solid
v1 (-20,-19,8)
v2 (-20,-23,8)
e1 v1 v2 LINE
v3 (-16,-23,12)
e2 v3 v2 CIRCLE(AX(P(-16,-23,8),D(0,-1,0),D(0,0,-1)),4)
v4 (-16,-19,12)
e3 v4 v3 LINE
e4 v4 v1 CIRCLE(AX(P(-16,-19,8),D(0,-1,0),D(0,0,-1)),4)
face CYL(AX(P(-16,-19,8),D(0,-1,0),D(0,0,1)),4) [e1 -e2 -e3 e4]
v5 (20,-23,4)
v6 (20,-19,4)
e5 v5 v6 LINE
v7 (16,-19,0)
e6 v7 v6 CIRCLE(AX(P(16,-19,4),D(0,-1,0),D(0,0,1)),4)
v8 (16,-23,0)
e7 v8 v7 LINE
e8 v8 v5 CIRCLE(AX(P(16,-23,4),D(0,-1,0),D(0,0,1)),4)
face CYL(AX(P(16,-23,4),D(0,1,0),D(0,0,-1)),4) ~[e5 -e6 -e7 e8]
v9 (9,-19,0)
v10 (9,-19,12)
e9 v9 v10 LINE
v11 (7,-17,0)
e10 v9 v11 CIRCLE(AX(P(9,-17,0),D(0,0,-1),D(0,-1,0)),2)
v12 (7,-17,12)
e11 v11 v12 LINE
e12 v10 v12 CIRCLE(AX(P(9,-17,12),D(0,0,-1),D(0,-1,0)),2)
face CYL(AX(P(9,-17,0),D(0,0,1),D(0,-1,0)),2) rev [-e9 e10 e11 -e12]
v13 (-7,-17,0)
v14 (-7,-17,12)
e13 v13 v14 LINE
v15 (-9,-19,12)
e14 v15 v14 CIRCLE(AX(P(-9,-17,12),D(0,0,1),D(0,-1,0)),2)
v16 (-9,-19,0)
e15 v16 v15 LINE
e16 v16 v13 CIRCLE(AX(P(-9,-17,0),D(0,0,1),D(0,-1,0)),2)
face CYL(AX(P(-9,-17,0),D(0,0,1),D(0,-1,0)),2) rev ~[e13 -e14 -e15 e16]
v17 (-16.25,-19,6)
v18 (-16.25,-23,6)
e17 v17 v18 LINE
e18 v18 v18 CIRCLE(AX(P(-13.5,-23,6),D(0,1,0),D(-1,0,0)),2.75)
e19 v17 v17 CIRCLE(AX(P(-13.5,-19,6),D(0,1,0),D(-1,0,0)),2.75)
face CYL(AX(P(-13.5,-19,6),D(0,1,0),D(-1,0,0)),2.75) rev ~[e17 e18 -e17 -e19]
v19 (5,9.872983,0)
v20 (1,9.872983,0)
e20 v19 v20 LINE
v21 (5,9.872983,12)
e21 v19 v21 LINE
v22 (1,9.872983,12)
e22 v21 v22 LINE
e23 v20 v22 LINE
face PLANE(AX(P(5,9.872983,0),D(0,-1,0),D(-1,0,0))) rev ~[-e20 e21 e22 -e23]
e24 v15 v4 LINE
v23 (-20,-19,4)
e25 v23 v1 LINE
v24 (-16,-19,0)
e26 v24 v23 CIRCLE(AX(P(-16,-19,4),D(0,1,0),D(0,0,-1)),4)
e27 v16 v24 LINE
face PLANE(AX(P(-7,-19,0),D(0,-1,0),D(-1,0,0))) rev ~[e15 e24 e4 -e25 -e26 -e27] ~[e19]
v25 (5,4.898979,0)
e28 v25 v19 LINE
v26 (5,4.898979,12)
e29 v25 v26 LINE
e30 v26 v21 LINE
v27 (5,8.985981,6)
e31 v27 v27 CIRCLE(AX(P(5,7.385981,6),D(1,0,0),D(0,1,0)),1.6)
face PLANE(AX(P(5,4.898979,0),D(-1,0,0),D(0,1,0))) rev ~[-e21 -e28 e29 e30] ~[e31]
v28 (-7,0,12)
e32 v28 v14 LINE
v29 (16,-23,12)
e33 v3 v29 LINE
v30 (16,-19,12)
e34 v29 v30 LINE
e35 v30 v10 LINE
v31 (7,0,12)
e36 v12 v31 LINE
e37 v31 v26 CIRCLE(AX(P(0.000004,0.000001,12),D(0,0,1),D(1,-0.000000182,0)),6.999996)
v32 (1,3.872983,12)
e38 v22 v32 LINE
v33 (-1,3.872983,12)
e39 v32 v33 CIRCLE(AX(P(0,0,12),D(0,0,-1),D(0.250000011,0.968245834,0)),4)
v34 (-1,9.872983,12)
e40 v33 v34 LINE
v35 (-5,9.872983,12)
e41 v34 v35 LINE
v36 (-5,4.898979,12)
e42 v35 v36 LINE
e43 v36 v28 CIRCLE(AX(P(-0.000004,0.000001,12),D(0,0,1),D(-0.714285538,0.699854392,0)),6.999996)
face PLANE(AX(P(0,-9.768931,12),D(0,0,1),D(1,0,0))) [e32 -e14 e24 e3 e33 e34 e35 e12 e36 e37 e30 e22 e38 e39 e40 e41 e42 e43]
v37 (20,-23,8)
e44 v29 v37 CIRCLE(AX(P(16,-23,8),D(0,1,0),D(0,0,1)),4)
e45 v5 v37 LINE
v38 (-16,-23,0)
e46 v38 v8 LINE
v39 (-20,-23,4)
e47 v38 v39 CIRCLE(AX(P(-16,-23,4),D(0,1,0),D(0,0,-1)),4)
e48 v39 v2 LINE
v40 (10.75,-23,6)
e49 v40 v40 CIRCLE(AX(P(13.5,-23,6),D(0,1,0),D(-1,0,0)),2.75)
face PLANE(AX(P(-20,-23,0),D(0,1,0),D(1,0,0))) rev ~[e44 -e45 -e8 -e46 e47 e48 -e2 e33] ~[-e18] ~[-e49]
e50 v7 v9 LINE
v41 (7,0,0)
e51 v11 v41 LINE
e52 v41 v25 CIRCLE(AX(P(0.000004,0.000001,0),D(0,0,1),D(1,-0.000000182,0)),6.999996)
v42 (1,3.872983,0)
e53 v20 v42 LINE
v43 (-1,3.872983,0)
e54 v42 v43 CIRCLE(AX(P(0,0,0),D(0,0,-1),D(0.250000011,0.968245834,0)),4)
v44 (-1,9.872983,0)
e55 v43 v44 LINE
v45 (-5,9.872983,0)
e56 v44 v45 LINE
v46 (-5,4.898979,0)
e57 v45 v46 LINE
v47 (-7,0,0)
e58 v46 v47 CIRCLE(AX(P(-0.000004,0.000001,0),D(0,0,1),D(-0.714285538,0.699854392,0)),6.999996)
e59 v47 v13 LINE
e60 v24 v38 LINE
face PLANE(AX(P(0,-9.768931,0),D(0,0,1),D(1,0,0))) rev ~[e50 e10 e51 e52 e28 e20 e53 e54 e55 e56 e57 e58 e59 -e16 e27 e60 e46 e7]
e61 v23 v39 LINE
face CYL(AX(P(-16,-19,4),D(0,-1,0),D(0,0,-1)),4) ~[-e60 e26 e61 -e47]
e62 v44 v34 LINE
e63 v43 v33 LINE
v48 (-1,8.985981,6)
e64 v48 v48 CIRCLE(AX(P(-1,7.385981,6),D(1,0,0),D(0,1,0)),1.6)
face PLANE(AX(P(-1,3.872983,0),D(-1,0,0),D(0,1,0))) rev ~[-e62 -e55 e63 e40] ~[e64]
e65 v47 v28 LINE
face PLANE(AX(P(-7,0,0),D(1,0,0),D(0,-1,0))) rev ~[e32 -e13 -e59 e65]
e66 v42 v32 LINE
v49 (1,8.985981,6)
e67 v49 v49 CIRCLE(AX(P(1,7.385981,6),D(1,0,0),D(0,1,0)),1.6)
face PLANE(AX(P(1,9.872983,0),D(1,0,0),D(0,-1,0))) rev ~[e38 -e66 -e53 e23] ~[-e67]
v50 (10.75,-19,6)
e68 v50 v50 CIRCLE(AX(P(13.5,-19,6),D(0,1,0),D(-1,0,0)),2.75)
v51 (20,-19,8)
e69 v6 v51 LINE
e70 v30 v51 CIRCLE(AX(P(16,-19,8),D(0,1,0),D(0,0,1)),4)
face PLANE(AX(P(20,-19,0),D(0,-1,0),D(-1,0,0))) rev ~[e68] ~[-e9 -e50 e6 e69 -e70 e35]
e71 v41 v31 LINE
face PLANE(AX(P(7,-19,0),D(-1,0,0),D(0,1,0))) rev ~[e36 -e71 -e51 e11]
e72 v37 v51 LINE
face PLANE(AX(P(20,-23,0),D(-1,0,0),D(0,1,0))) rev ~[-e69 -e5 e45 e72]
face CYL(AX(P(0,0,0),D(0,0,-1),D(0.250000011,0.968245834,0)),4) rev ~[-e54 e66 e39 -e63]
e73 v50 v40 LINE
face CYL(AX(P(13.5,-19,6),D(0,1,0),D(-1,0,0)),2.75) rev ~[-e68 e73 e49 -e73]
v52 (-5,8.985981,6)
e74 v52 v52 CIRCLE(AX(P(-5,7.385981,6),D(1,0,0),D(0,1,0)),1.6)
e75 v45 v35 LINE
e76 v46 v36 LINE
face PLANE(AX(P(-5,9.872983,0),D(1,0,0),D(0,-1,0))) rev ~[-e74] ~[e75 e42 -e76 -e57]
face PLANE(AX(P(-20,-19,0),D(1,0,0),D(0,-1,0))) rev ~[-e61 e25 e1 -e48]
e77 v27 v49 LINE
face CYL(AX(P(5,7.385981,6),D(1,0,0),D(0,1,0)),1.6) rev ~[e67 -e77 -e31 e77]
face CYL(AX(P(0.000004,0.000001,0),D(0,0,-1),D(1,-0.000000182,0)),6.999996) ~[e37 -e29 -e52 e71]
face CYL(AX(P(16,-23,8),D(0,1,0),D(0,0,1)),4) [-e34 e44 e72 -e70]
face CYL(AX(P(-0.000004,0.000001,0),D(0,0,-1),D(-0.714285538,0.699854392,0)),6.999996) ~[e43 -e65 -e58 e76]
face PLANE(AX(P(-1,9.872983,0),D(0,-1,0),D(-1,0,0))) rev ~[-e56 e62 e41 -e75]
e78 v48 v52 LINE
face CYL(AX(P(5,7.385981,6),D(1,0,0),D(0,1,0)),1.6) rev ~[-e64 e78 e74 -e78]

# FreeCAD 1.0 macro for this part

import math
import FreeCAD as App
import Part
import Sketcher

V = App.Vector


def edges_at(feature, points):
    """Names of the edges that pass closest to the given points."""
    edges = feature.Shape.Edges
    near = lambda p: min(range(len(edges)), key=lambda i: edges[i].distToShape(Part.Vertex(*p))[0])
    return sorted({f"Edge{near(p) + 1}" for p in points})

doc = App.newDocument("Part")
body = doc.addObject("PartDesign::Body", "Body")

# Sketch on XY plane
sketch1 = body.newObject("Sketcher::SketchObject", "Sketch")
sketch1.AttachmentSupport = (doc.getObject("XY_Plane"), [""])
sketch1.MapMode = "FlatFace"
sketch1.addGeometry([
    Part.ArcOfCircle(Part.Circle(V(0, 0, 0), V(0, 0, 1), 4), math.radians(104), math.radians(436)),  # 0
    Part.LineSegment(V(-1, 3.9, 0), V(-1, 9.9, 0)),  # 1
    Part.LineSegment(V(-1, 9.9, 0), V(-5, 9.9, 0)),  # 2
    Part.LineSegment(V(-5, 9.9, 0), V(-5, 4.9, 0)),  # 3
    Part.ArcOfCircle(Part.Circle(V(0, 0, 0), V(0, 0, 1), 7), math.radians(136), math.radians(180)),  # 4
    Part.LineSegment(V(-7, 0, 0), V(-7, -19, 0)),  # 5
    Part.LineSegment(V(-7, -19, 0), V(-20, -19, 0)),  # 6
    Part.LineSegment(V(-20, -19, 0), V(-20, -23, 0)),  # 7
    Part.LineSegment(V(-20, -23, 0), V(20, -23, 0)),  # 8
    Part.LineSegment(V(20, -23, 0), V(20, -19, 0)),  # 9
    Part.LineSegment(V(20, -19, 0), V(7, -19, 0)),  # 10
    Part.LineSegment(V(7, -19, 0), V(7, 0, 0)),  # 11
    Part.ArcOfCircle(Part.Circle(V(0, 0, 0), V(0, 0, 1), 7), math.radians(0), math.radians(44)),  # 12
    Part.LineSegment(V(5, 4.9, 0), V(5, 9.9, 0)),  # 13
    Part.LineSegment(V(5, 9.9, 0), V(1, 9.9, 0)),  # 14
    Part.LineSegment(V(1, 9.9, 0), V(1, 3.9, 0)),  # 15
], False)
sketch1.addConstraint([
    Sketcher.Constraint("Coincident", 0, 1, 1, 1),
    Sketcher.Constraint("Coincident", 1, 2, 2, 1),
    Sketcher.Constraint("Coincident", 2, 2, 3, 1),
    Sketcher.Constraint("Coincident", 3, 2, 4, 1),
    Sketcher.Constraint("Tangent", 4, 2, 5, 1),
    Sketcher.Constraint("Coincident", 5, 2, 6, 1),
    Sketcher.Constraint("Coincident", 6, 2, 7, 1),
    Sketcher.Constraint("Coincident", 7, 2, 8, 1),
    Sketcher.Constraint("Coincident", 8, 2, 9, 1),
    Sketcher.Constraint("Coincident", 9, 2, 10, 1),
    Sketcher.Constraint("Coincident", 10, 2, 11, 1),
    Sketcher.Constraint("Tangent", 11, 2, 12, 1),
    Sketcher.Constraint("Coincident", 12, 2, 13, 1),
    Sketcher.Constraint("Coincident", 13, 2, 14, 1),
    Sketcher.Constraint("Coincident", 14, 2, 15, 1),
    Sketcher.Constraint("Coincident", 15, 2, 0, 2),
    Sketcher.Constraint("Vertical", 1),
    Sketcher.Constraint("Horizontal", 2),
    Sketcher.Constraint("Vertical", 3),
    Sketcher.Constraint("Vertical", 5),
    Sketcher.Constraint("Horizontal", 6),
    Sketcher.Constraint("Vertical", 7),
    Sketcher.Constraint("Horizontal", 8),
    Sketcher.Constraint("Vertical", 9),
    Sketcher.Constraint("Horizontal", 10),
    Sketcher.Constraint("Vertical", 11),
    Sketcher.Constraint("Vertical", 13),
    Sketcher.Constraint("Horizontal", 14),
    Sketcher.Constraint("Vertical", 15),
    Sketcher.Constraint("Coincident", 0, 3, -1, 1),
    Sketcher.Constraint("Coincident", 4, 3, -1, 1),
    Sketcher.Constraint("Coincident", 12, 3, -1, 1),
    Sketcher.Constraint("Equal", 4, 12),
    Sketcher.Constraint("Symmetric", 6, 2, 9, 2, -2),
    Sketcher.Constraint("Symmetric", 2, 2, 13, 2, -2),
    Sketcher.Constraint("Horizontal", 0, 1, 15, 2),
    Sketcher.Constraint("Equal", 14, 7),
    Sketcher.Constraint("Radius", 0, 4.0),
    Sketcher.Constraint("DistanceX", 2, 2, 2, 1, 4.0),
    Sketcher.Constraint("DistanceX", 6, 2, 6, 1, 13.0),
    Sketcher.Constraint("DistanceX", 8, 1, 8, 2, 40.0),
    Sketcher.Constraint("DistanceY", 1, 1, 1, 2, 6.0),
    Sketcher.Constraint("DistanceY", 5, 2, 5, 1, 19.0),
    Sketcher.Constraint("DistanceX", 0, 1, -1, 1, 1.0),
])
pad1 = body.newObject("PartDesign::Pad", "Pad")
pad1.Profile = sketch1
pad1.Length = 12

# Sketch on XZ plane
sketch2 = body.newObject("Sketcher::SketchObject", "Sketch001")
sketch2.AttachmentSupport = (doc.getObject("XZ_Plane"), [""])
sketch2.MapMode = "FlatFace"
sketch2.AttachmentOffset = App.Placement(V(0, 0, 19), App.Rotation())
sketch2.addGeometry([
    Part.Circle(V(13.5, 6, 0), V(0, 0, 1), 2.8),
    Part.Circle(V(-13.5, 6, 0), V(0, 0, 1), 2.8),
], False)
sketch2.addConstraint([
    Sketcher.Constraint("Equal", 0, 1),
    Sketcher.Constraint("Symmetric", 0, 3, 1, 3, -2),
    Sketcher.Constraint("Diameter", 0, 5.5),
    Sketcher.Constraint("DistanceY", -1, 1, 0, 3, 6.0),
    Sketcher.Constraint("DistanceX", 1, 3, 0, 3, 27.0),
])
pocket1 = body.newObject("PartDesign::Pocket", "Pocket")
pocket1.Profile = sketch2
pocket1.Length = 25
pocket1.Reversed = True
doc.recompute()

fillet = body.newObject("PartDesign::Fillet", "Fillet")
fillet.Base = (pocket1, edges_at(pocket1, [
    (20, -21, 12),
    (20, -21, 0),
    (-20, -21, 0),
    (-20, -21, 12),
]))
fillet.Radius = 4
doc.recompute()

fillet2 = body.newObject("PartDesign::Fillet", "Fillet001")
fillet2.Base = (fillet, edges_at(fillet, [(7, -19, 6), (-7, -19, 6)]))
fillet2.Radius = 2

# Sketch on YZ plane
sketch3 = body.newObject("Sketcher::SketchObject", "Sketch002")
sketch3.AttachmentSupport = (doc.getObject("YZ_Plane"), [""])
sketch3.MapMode = "FlatFace"
sketch3.AttachmentOffset = App.Placement(V(0, 0, 5), App.Rotation())
sketch3.addGeometry(Part.Circle(V(7.4, 6, 0), V(0, 0, 1), 1.6), False)
sketch3.addConstraint([
    Sketcher.Constraint("Diameter", 0, 3.2),
    Sketcher.Constraint("DistanceY", -1, 1, 0, 3, 6.0),
    Sketcher.Constraint("DistanceX", -1, 1, 0, 3, 7.385981),
])
pocket2 = body.newObject("PartDesign::Pocket", "Pocket001")
pocket2.Profile = sketch3
pocket2.Type = "ThroughAll"

doc.recompute()
